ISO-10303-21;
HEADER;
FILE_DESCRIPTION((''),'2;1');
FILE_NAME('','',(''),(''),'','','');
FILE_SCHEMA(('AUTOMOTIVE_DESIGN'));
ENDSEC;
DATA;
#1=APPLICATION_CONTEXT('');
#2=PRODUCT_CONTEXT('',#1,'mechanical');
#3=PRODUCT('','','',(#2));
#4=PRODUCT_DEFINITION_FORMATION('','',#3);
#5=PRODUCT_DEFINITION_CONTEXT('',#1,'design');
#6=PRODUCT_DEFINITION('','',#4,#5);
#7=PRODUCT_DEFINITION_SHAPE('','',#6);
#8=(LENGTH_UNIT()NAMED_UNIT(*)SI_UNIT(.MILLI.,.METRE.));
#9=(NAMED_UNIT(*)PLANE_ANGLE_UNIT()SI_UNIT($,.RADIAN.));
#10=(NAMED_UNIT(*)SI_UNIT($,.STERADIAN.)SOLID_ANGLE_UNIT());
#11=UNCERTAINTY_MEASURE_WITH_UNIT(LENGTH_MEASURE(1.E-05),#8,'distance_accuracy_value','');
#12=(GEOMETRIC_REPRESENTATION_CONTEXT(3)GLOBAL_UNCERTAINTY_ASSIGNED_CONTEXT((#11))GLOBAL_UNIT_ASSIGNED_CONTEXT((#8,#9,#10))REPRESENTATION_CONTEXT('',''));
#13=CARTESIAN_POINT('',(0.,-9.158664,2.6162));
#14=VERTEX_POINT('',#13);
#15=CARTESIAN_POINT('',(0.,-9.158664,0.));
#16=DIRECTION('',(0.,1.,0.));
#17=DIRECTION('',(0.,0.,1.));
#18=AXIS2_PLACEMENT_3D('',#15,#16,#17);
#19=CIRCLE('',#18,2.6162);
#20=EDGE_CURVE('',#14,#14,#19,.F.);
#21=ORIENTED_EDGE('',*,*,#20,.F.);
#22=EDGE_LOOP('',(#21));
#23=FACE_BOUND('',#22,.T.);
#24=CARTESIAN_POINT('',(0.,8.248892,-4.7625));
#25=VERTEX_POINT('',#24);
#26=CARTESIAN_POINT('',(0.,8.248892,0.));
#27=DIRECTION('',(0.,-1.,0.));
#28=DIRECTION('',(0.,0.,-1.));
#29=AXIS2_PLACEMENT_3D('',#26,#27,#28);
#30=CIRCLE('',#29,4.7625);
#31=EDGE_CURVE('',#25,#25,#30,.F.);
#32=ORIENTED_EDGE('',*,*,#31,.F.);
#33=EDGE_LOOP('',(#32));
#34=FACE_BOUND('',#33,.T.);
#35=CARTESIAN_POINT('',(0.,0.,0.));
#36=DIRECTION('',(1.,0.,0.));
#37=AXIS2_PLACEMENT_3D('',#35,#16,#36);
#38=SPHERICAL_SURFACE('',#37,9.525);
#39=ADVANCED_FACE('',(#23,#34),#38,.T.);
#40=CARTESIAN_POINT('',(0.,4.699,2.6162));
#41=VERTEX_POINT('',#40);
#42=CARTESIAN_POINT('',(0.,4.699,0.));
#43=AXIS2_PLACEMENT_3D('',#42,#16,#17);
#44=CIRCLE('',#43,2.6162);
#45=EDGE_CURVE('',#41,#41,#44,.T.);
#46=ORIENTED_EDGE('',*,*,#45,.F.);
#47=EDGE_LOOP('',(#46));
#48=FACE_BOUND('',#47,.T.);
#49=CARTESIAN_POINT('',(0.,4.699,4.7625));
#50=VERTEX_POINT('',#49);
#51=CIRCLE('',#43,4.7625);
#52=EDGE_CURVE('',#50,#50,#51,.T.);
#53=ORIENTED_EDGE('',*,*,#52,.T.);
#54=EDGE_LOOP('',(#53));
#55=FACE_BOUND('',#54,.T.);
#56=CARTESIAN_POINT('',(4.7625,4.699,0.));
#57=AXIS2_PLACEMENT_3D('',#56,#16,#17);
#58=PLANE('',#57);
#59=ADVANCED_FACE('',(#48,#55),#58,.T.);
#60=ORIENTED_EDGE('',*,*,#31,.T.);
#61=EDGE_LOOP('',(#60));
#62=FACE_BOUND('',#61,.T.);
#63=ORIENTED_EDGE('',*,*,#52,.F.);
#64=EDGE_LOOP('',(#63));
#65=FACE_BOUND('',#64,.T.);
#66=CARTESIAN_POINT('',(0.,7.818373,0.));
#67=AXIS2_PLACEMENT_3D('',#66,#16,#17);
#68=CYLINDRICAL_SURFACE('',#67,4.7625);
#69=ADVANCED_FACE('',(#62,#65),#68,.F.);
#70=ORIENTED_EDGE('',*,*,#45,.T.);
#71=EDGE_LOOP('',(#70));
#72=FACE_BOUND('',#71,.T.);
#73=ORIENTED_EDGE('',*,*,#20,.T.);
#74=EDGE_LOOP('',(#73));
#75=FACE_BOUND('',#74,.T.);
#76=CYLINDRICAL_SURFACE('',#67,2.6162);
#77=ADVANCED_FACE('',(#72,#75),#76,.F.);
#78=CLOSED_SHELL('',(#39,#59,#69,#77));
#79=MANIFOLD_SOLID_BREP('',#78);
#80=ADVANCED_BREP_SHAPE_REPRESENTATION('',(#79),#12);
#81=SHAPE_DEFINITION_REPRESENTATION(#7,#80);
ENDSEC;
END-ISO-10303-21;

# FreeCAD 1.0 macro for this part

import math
import FreeCAD as App
import Part
import Sketcher
from FreeCAD import Vector
Q = App.Units.Quantity


def add_polygon(sketch, points):
    """Adds a closed chain of lines whose ends are joined by coincident constraints."""
    first, n = sketch.GeometryCount, len(points)
    for a, b in zip(points, points[1:] + points[:1]):
        sketch.addGeometry(Part.LineSegment(App.Vector(*a, 0), App.Vector(*b, 0)), False)
    for i in range(n):
        sketch.addConstraint(Sketcher.Constraint("Coincident", first + i, 2, first + (i + 1) % n, 1))

doc = App.newDocument("Part")
params = doc.addObject("Spreadsheet::Sheet", "Params")
for row, (alias, value) in enumerate([
    ("sketch1_radius", "0.375 in"),
    ("revolution_angle", "360 deg"),
    ("sketch2_height", "0.56 in"),
    ("sketch2_height2", "0.19 in"),
    ("sketch2_width", "0.1875 in"),
    ("sketch2_width2", "0.103 in"),
    ("groove_angle", "360 deg"),
], start=1):
    params.set(f"A{row}", alias)
    params.set(f"B{row}", "=" + value)
    params.setAlias(f"B{row}", alias)

body = doc.addObject("PartDesign::Body", "Body")

# Sketch on XY plane
sketch1 = body.newObject("Sketcher::SketchObject", "Sketch")
sketch1.AttachmentSupport = (doc.getObject("XY_Plane"), [""])
sketch1.MapMode = "FlatFace"
sketch1.addGeometry([
    Part.LineSegment(Vector(0, 10, 0), Vector(0, -10, 0)),
    Part.ArcOfCircle(Part.Circle(Vector(0, 0, 0), Vector(0, 0, 1), 10), math.radians(-90), math.radians(90)),
], False)
sketch1.addConstraint([
    Sketcher.Constraint("Coincident", 0, 1, 1, 2),
    Sketcher.Constraint("Coincident", 1, 1, 0, 2),
    Sketcher.Constraint("Vertical", 0),
    Sketcher.Constraint("Coincident", 1, 3, -1, 1),
    Sketcher.Constraint("PointOnObject", 0, 1, -2),
    Sketcher.Constraint("Radius", 1, Q("0.375 in")),
])
sketch1.setExpression("Constraints[5]", "Params.sketch1_radius")
revolution = body.newObject("PartDesign::Revolution", "Revolution")
revolution.Profile = sketch1
revolution.ReferenceAxis = (sketch1, ["V_Axis"])
revolution.setExpression("Angle", "Params.revolution_angle")

# Sketch on XY plane
sketch2 = body.newObject("Sketcher::SketchObject", "Sketch001")
sketch2.AttachmentSupport = (doc.getObject("XY_Plane"), [""])
sketch2.MapMode = "FlatFace"
add_polygon(sketch2, [(2.6, -9.5), (2.6, 4.7), (4.8, 4.7), (4.8, 9.5), (0, 9.5), (0, -9.5)])  # lines 0-5
sketch2.addConstraint([
    Sketcher.Constraint("Vertical", 0),
    Sketcher.Constraint("Horizontal", 1),
    Sketcher.Constraint("Vertical", 2),
    Sketcher.Constraint("Horizontal", 3),
    Sketcher.Constraint("Vertical", 4),
    Sketcher.Constraint("Horizontal", 5),
    Sketcher.Constraint("Symmetric", 3, 2, 4, 2, -1, 1),
    Sketcher.Constraint("DistanceY", 0, 1, 0, 2, Q("0.56 in")),
    Sketcher.Constraint("DistanceY", 2, 1, 2, 2, Q("0.19 in")),
    Sketcher.Constraint("DistanceX", 3, 2, 3, 1, Q("0.1875 in")),
    Sketcher.Constraint("DistanceX", 5, 1, 5, 2, Q("0.103 in")),
])
sketch2.setExpression("Constraints[13]", "Params.sketch2_height")
sketch2.setExpression("Constraints[14]", "Params.sketch2_height2")
sketch2.setExpression("Constraints[15]", "Params.sketch2_width")
sketch2.setExpression("Constraints[16]", "Params.sketch2_width2")
groove = body.newObject("PartDesign::Groove", "Groove")
groove.Profile = sketch2
groove.ReferenceAxis = (sketch2, ["V_Axis"])
groove.setExpression("Angle", "Params.groove_angle")

doc.recompute()
